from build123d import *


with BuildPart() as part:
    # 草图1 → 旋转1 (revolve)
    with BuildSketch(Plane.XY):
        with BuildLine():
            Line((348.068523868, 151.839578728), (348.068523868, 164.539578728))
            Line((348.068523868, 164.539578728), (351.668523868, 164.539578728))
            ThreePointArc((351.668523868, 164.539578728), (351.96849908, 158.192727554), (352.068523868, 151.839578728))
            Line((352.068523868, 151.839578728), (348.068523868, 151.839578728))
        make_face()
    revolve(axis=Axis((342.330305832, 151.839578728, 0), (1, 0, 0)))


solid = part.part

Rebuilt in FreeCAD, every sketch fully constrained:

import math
import FreeCAD as App
import Part
import Sketcher
from FreeCAD import Vector
Q = App.Units.Quantity

doc = App.newDocument("Part")
body = doc.addObject("PartDesign::Body", "Body")

# Sketch on XY plane
sketch1 = body.newObject("Sketcher::SketchObject", "Sketch")
sketch1.AttachmentSupport = (doc.getObject("XY_Plane"), [""])
sketch1.MapMode = "FlatFace"
sketch1.addGeometry(Part.LineSegment(Vector(348.1, 164.5, 0), Vector(348.1, 151.8, 0)), False)
sketch1.addGeometry(Part.LineSegment(Vector(348.1, 151.8, 0), Vector(352.1, 151.8, 0)), False)
sketch1.addGeometry(Part.ArcOfCircle(Part.Circle(Vector(150.3, 151.8, 0), Vector(0, 0, 1), 201.8), math.radians(0), math.radians(3.61)), False)
sketch1.addGeometry(Part.LineSegment(Vector(351.7, 164.5, 0), Vector(348.1, 164.5, 0)), False)
sketch1.addGeometry(Part.LineSegment(Vector(150.3, 151.8, 0), Vector(352.1, 151.8, 0)), True)  # axis
sketch1.addConstraint(Sketcher.Constraint("Coincident", 0, 2, 1, 1))
sketch1.addConstraint(Sketcher.Constraint("Coincident", 1, 2, 2, 1))
sketch1.addConstraint(Sketcher.Constraint("Coincident", 2, 2, 3, 1))
sketch1.addConstraint(Sketcher.Constraint("Coincident", 3, 2, 0, 1))
sketch1.addConstraint(Sketcher.Constraint("Vertical", 0))
sketch1.addConstraint(Sketcher.Constraint("Horizontal", 1))
sketch1.addConstraint(Sketcher.Constraint("Horizontal", 3))
sketch1.addConstraint(Sketcher.Constraint("Horizontal", 4))
sketch1.addConstraint(Sketcher.Constraint("Coincident", 4, 1, 2, 3))
sketch1.addConstraint(Sketcher.Constraint("Coincident", 4, 2, 1, 2))
sketch1.addConstraint(Sketcher.Constraint("DistanceX", 1, 1, 1, 2, Q("4 mm")))
sketch1.addConstraint(Sketcher.Constraint("DistanceX", 3, 2, 3, 1, Q("3.6 mm")))
sketch1.addConstraint(Sketcher.Constraint("DistanceY", 0, 2, 0, 1, Q("12.7 mm")))
sketch1.addConstraint(Sketcher.Constraint("DistanceY", -1, 1, 2, 3, Q("151.839579 mm")))
sketch1.addConstraint(Sketcher.Constraint("DistanceX", -1, 1, 2, 3, Q("150.256023 mm")))
revolution = body.newObject("PartDesign::Revolution", "Revolution")
revolution.Profile = sketch1
revolution.ReferenceAxis = (sketch1, ["Axis0"])
revolution.Angle = 360

doc.recompute()
